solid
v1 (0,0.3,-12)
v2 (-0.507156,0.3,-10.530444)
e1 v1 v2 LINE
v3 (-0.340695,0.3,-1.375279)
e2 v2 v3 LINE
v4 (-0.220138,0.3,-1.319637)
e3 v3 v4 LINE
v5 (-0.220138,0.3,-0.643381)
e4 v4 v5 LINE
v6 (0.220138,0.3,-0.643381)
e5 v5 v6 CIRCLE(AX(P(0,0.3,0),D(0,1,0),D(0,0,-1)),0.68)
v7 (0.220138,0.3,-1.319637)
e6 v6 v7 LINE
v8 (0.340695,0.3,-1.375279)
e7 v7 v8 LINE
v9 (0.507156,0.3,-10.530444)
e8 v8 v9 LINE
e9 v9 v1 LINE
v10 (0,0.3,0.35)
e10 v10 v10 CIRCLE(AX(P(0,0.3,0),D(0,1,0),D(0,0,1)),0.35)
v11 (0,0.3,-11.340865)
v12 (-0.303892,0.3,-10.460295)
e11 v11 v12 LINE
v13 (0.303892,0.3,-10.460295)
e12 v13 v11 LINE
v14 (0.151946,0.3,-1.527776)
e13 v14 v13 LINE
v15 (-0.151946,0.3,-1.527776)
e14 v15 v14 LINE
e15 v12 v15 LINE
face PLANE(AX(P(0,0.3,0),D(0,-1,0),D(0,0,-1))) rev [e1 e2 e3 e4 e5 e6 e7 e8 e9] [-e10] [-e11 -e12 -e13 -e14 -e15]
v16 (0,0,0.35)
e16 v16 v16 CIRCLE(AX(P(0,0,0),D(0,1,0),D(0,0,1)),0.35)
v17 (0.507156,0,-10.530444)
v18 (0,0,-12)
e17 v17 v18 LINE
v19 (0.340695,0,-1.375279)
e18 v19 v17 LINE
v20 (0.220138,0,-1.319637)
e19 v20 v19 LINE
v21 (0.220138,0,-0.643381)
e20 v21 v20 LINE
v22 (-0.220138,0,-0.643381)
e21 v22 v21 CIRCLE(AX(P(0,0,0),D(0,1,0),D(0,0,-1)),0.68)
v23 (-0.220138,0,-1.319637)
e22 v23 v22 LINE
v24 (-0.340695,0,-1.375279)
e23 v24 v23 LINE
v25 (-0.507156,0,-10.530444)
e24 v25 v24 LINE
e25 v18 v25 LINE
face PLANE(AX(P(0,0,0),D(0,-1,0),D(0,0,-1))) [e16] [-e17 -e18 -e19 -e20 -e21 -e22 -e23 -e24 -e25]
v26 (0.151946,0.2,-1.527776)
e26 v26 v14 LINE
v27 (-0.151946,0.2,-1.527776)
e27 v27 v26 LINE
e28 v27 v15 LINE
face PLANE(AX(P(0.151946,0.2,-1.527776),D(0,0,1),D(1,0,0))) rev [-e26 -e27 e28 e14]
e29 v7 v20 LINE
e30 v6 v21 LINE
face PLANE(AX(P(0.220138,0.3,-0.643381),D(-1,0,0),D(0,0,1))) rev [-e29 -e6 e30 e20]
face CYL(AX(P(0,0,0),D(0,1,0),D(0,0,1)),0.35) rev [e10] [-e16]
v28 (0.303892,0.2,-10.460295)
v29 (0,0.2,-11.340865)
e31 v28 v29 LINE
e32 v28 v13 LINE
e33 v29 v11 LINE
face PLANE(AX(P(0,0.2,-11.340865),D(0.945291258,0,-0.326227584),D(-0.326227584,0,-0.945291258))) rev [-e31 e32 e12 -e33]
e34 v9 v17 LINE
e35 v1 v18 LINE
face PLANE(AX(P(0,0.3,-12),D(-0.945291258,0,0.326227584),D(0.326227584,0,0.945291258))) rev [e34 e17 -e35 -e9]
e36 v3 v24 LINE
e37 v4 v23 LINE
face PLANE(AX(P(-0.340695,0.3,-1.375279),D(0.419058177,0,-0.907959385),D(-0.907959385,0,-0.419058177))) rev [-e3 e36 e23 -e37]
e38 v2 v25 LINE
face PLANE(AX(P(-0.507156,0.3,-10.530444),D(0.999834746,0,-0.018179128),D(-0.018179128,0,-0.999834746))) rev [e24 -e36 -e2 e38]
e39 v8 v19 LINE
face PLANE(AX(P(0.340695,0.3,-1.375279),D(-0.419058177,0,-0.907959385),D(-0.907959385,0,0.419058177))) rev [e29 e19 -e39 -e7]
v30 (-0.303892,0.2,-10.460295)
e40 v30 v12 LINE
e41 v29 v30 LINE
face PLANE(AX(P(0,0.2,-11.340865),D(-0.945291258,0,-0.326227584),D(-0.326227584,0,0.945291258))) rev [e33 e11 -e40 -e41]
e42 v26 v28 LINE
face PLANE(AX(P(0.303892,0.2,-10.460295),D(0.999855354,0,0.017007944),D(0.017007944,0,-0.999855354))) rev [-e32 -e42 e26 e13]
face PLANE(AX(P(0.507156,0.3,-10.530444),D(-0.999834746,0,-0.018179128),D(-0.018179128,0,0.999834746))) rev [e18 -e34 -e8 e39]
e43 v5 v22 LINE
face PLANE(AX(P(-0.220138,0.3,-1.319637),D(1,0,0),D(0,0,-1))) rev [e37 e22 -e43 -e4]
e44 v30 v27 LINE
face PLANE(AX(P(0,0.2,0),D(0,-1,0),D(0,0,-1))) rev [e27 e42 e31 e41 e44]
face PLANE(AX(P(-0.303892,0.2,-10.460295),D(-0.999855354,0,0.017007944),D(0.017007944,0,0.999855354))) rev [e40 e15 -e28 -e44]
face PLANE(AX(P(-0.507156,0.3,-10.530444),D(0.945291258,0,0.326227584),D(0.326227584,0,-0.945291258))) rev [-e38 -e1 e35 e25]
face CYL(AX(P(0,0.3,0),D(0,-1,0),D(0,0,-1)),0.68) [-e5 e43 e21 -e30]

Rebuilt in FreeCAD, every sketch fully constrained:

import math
import FreeCAD as App
import Part
import Sketcher
from FreeCAD import Vector

doc = App.newDocument("Part")
body = doc.addObject("PartDesign::Body", "Body")

sketch1 = doc.addObject("Sketcher::SketchObject", "Sketch")
body.addObject(sketch1)
sketch1.AttachmentSupport = (doc.XZ_Plane, [""])
sketch1.MapMode = "FlatFace"
sketch1.addGeometry([
    Part.LineSegment(Vector(-0.22, -1.32, 0), Vector(-0.22, -0.64, 0)),
    Part.ArcOfCircle(Part.Circle(Vector(0, 0, 0), Vector(0, 0, 1), 0.68), math.radians(-71), math.radians(251)),
    Part.LineSegment(Vector(0.22, -0.64, 0), Vector(0.22, -1.32, 0)),
    Part.LineSegment(Vector(0.22, -1.32, 0), Vector(0.34, -1.38, 0)),
    Part.LineSegment(Vector(0.34, -1.38, 0), Vector(0.51, -10.53, 0)),
    Part.LineSegment(Vector(0.51, -10.53, 0), Vector(0, -12, 0)),
    Part.LineSegment(Vector(0, -12, 0), Vector(-0.51, -10.53, 0)),
    Part.LineSegment(Vector(-0.51, -10.53, 0), Vector(-0.34, -1.38, 0)),
    Part.LineSegment(Vector(-0.34, -1.38, 0), Vector(-0.22, -1.32, 0)),
], False)
sketch1.addConstraint([
    Sketcher.Constraint("Coincident", 0, 2, 1, 2),
    Sketcher.Constraint("Coincident", 1, 1, 2, 1),
    Sketcher.Constraint("Coincident", 2, 2, 3, 1),
    Sketcher.Constraint("Coincident", 3, 2, 4, 1),
    Sketcher.Constraint("Coincident", 4, 2, 5, 1),
    Sketcher.Constraint("Coincident", 5, 2, 6, 1),
    Sketcher.Constraint("Coincident", 6, 2, 7, 1),
    Sketcher.Constraint("Coincident", 7, 2, 8, 1),
    Sketcher.Constraint("Coincident", 8, 2, 0, 1),
    Sketcher.Constraint("Vertical", 0),
    Sketcher.Constraint("Vertical", 2),
    Sketcher.Constraint("Coincident", 1, 3, -1, 1),
    Sketcher.Constraint("Symmetric", 4, 2, 6, 2, -2),
    Sketcher.Constraint("Symmetric", 3, 2, 7, 2, -2),
    Sketcher.Constraint("Symmetric", 2, 2, 8, 2, -2),
    Sketcher.Constraint("PointOnObject", 5, 2, -2),
    Sketcher.Constraint("Radius", 1, 0.68),
    Sketcher.Constraint("DistanceY", 5, 2, -1, 1, 12.0),
    Sketcher.Constraint("Distance", 3, 0.132778),
    Sketcher.Constraint("Distance", 4, 9.156678),
    Sketcher.Constraint("DistanceY", 0, 1, 0, 2, 0.676256),
    Sketcher.Constraint("DistanceY", 0, 2, -1, 1, 0.643381),
    Sketcher.Constraint("DistanceY", 3, 2, -1, 1, 1.375279),
    Sketcher.Constraint("DistanceX", 3, 2, 4, 2, 0.16646),
])
pad1 = doc.addObject("PartDesign::Pad", "Pad")
body.addObject(pad1)
pad1.Profile = sketch1
pad1.Length = 0.3
pad1.Reversed = True

sketch2 = doc.addObject("Sketcher::SketchObject", "Sketch001")
body.addObject(sketch2)
sketch2.AttachmentSupport = (doc.XZ_Plane, [""])
sketch2.MapMode = "FlatFace"
sketch2.AttachmentOffset = App.Placement(Vector(0, 0, -0.3), App.Rotation())
sketch2.addGeometry(Part.Circle(Vector(0, 0, 0), Vector(0, 0, 1), 0.35), False)
sketch2.addConstraint([
    Sketcher.Constraint("Coincident", 0, 3, -1, 1),
    Sketcher.Constraint("Diameter", 0, 0.7),
])
pocket1 = doc.addObject("PartDesign::Pocket", "Pocket")
body.addObject(pocket1)
pocket1.Profile = sketch2
pocket1.Length = 0.3
pocket1.Reversed = True

sketch3 = doc.addObject("Sketcher::SketchObject", "Sketch002")
body.addObject(sketch3)
sketch3.AttachmentSupport = (doc.XZ_Plane, [""])
sketch3.MapMode = "FlatFace"
sketch3.AttachmentOffset = App.Placement(Vector(0, 0, -0.3), App.Rotation())
sketch3.addGeometry([
    Part.LineSegment(Vector(0.3, -10.46, 0), Vector(0, -11.34, 0)),
    Part.LineSegment(Vector(0, -11.34, 0), Vector(-0.3, -10.46, 0)),
    Part.LineSegment(Vector(-0.3, -10.46, 0), Vector(-0.15, -1.53, 0)),
    Part.LineSegment(Vector(-0.15, -1.53, 0), Vector(0.15, -1.53, 0)),
    Part.LineSegment(Vector(0.15, -1.53, 0), Vector(0.3, -10.46, 0)),
], False)
sketch3.addConstraint([
    Sketcher.Constraint("Coincident", 0, 2, 1, 1),
    Sketcher.Constraint("Coincident", 1, 2, 2, 1),
    Sketcher.Constraint("Coincident", 2, 2, 3, 1),
    Sketcher.Constraint("Coincident", 3, 2, 4, 1),
    Sketcher.Constraint("Coincident", 4, 2, 0, 1),
    Sketcher.Constraint("Horizontal", 3),
    Sketcher.Constraint("Symmetric", 1, 2, 4, 2, -2),
    Sketcher.Constraint("PointOnObject", 0, 2, -2),
    Sketcher.Constraint("Equal", 2, 4),
    Sketcher.Constraint("DistanceX", 3, 1, 3, 2, 0.303892),
    Sketcher.Constraint("DistanceX", 1, 2, -1, 1, 0.303892),
    Sketcher.Constraint("DistanceY", 0, 2, 1, 2, 0.880569),
    Sketcher.Constraint("DistanceY", 1, 2, 2, 2, 8.93252),
    Sketcher.Constraint("DistanceY", 0, 2, -1, 1, 11.340865),
])
pocket2 = doc.addObject("PartDesign::Pocket", "Pocket001")
body.addObject(pocket2)
pocket2.Profile = sketch3
pocket2.Length = 0.1
pocket2.Reversed = True

doc.recompute()
